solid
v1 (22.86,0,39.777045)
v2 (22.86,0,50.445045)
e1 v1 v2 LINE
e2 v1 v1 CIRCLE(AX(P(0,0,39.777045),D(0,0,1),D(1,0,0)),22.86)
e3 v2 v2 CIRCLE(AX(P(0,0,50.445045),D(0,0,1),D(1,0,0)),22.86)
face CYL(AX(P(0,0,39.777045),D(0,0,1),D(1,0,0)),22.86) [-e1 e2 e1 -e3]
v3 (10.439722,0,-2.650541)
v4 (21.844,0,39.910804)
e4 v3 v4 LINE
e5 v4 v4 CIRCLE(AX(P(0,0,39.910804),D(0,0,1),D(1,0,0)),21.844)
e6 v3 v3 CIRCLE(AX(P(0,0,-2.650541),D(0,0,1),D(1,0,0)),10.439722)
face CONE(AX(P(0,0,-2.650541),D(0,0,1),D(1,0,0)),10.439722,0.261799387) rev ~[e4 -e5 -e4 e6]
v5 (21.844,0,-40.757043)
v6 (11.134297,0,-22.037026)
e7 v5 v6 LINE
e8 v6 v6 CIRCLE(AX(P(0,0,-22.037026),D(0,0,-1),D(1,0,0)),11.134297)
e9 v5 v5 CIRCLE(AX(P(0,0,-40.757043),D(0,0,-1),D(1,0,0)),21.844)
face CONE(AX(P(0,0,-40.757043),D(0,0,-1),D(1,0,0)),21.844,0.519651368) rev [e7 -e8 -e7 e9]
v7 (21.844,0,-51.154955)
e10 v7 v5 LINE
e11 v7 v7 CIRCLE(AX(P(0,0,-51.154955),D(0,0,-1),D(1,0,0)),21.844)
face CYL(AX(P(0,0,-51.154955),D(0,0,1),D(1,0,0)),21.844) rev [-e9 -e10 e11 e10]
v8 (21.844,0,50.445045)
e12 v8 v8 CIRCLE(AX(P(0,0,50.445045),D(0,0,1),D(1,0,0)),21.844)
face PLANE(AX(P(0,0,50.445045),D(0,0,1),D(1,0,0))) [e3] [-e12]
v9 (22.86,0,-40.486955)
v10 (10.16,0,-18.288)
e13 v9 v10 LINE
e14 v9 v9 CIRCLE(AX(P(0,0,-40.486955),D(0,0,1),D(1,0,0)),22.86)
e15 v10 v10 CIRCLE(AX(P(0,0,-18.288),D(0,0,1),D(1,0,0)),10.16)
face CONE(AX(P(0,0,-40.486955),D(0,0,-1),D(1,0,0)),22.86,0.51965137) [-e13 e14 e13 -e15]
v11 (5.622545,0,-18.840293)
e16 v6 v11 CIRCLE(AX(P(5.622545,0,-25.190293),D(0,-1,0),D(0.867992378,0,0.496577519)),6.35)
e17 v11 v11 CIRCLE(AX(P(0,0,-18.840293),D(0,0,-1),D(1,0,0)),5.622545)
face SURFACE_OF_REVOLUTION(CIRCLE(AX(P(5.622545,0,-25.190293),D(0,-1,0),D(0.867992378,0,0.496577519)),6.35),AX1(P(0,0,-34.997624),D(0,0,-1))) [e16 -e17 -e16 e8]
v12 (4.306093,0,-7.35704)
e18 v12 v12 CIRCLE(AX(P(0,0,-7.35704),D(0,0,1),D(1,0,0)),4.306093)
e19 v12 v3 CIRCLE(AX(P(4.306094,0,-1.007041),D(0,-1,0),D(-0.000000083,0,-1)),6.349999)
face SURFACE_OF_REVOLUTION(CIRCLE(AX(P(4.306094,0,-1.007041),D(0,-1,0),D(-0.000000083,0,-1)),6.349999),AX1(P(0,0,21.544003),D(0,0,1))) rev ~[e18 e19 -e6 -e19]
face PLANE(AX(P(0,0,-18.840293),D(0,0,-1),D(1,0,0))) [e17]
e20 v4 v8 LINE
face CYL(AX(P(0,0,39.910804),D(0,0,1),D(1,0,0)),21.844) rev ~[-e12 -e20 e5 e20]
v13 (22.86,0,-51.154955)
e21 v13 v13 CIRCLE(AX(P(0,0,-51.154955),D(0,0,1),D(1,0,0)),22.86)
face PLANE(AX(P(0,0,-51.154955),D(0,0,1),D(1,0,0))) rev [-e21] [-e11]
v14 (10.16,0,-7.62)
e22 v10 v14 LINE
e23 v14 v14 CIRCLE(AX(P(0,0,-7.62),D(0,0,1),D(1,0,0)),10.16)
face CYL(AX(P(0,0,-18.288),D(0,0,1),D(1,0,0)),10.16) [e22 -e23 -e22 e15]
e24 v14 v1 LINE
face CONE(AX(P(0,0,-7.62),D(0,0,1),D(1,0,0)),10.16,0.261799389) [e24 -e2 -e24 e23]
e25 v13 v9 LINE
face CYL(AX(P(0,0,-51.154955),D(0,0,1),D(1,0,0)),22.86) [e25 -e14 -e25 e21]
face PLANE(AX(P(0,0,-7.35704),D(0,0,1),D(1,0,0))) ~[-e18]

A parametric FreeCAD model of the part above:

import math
import FreeCAD as App
import Part
import Sketcher

V = App.Vector
Q = App.Units.Quantity

doc = App.newDocument("Part")
body = doc.addObject("PartDesign::Body", "Body")

sketch1 = body.newObject("Sketcher::SketchObject", "Sketch")
sketch1.AttachmentSupport = (doc.getObject("XZ_Plane"), [""])
sketch1.MapMode = "FlatFace"
sketch1.addGeometry(Part.LineSegment(V(23, 40, 0), V(23, 50, 0)), False)
sketch1.addGeometry(Part.LineSegment(V(23, 50, 0), V(0, 50, 0)), False)
sketch1.addGeometry(Part.LineSegment(V(0, 50, 0), V(0, -51, 0)), False)
sketch1.addGeometry(Part.LineSegment(V(0, -51, 0), V(23, -51, 0)), False)
sketch1.addGeometry(Part.LineSegment(V(23, -51, 0), V(23, -40, 0)), False)
sketch1.addGeometry(Part.LineSegment(V(23, -40, 0), V(10, -18, 0)), False)
sketch1.addGeometry(Part.LineSegment(V(10, -18, 0), V(10, -8, 0)), False)
sketch1.addGeometry(Part.LineSegment(V(10, -8, 0), V(23, 40, 0)), False)
sketch1.addConstraint(Sketcher.Constraint("Coincident", 0, 2, 1, 1))
sketch1.addConstraint(Sketcher.Constraint("Coincident", 1, 2, 2, 1))
sketch1.addConstraint(Sketcher.Constraint("Coincident", 2, 2, 3, 1))
sketch1.addConstraint(Sketcher.Constraint("Coincident", 3, 2, 4, 1))
sketch1.addConstraint(Sketcher.Constraint("Coincident", 4, 2, 5, 1))
sketch1.addConstraint(Sketcher.Constraint("Coincident", 5, 2, 6, 1))
sketch1.addConstraint(Sketcher.Constraint("Coincident", 6, 2, 7, 1))
sketch1.addConstraint(Sketcher.Constraint("Coincident", 7, 2, 0, 1))
sketch1.addConstraint(Sketcher.Constraint("Vertical", 0))
sketch1.addConstraint(Sketcher.Constraint("Horizontal", 1))
sketch1.addConstraint(Sketcher.Constraint("Vertical", 2))
sketch1.addConstraint(Sketcher.Constraint("Horizontal", 3))
sketch1.addConstraint(Sketcher.Constraint("Vertical", 4))
sketch1.addConstraint(Sketcher.Constraint("Vertical", 6))
sketch1.addConstraint(Sketcher.Constraint("PointOnObject", 1, 2, -2))
sketch1.addConstraint(Sketcher.Constraint("Vertical", 0, 2, 3, 2))
sketch1.addConstraint(Sketcher.Constraint("Equal", 0, 4))
sketch1.addConstraint(Sketcher.Constraint("Equal", 4, 6))
sketch1.addConstraint(Sketcher.Constraint("DistanceY", 2, 2, 2, 1, Q("4 in")))
sketch1.addConstraint(Sketcher.Constraint("DistanceX", 1, 2, 1, 1, Q("0.9 in")))
sketch1.addConstraint(Sketcher.Constraint("Angle", 7, Q("75 deg")))
sketch1.addConstraint(Sketcher.Constraint("DistanceY", 0, 1, 0, 2, Q("0.42 in")))
sketch1.addConstraint(Sketcher.Constraint("DistanceX", -1, 1, 5, 2, Q("0.4 in")))
sketch1.addConstraint(Sketcher.Constraint("DistanceY", 6, 2, -1, 1, Q("0.3 in")))
revolution = body.newObject("PartDesign::Revolution", "Revolution")
revolution.Profile = sketch1
revolution.ReferenceAxis = (sketch1, ["V_Axis"])
revolution.Angle = 360

sketch2 = body.newObject("Sketcher::SketchObject", "Sketch001")
sketch2.AttachmentSupport = (doc.getObject("XZ_Plane"), [""])
sketch2.MapMode = "FlatFace"
sketch2.addGeometry(Part.LineSegment(V(10.4, -2.7, 0), V(21.8, 39.9, 0)), False)
sketch2.addGeometry(Part.LineSegment(V(21.8, 39.9, 0), V(21.8, 50.4, 0)), False)
sketch2.addGeometry(Part.LineSegment(V(21.8, 50.4, 0), V(0, 50.4, 0)), False)
sketch2.addGeometry(Part.LineSegment(V(0, 50.4, 0), V(0, -7.4, 0)), False)
sketch2.addGeometry(Part.LineSegment(V(0, -7.4, 0), V(4.3, -7.4, 0)), False)
sketch2.addGeometry(Part.ArcOfCircle(Part.Circle(V(4.3, -1, 0), V(0, 0, 1), 6.3), math.radians(-90), math.radians(-15)), False)
sketch2.addConstraint(Sketcher.Constraint("Coincident", 0, 2, 1, 1))
sketch2.addConstraint(Sketcher.Constraint("Coincident", 1, 2, 2, 1))
sketch2.addConstraint(Sketcher.Constraint("Coincident", 2, 2, 3, 1))
sketch2.addConstraint(Sketcher.Constraint("Coincident", 3, 2, 4, 1))
sketch2.addConstraint(Sketcher.Constraint("Tangent", 4, 2, 5, 1))
sketch2.addConstraint(Sketcher.Constraint("Tangent", 5, 2, 0, 1))
sketch2.addConstraint(Sketcher.Constraint("Vertical", 1))
sketch2.addConstraint(Sketcher.Constraint("Horizontal", 2))
sketch2.addConstraint(Sketcher.Constraint("Vertical", 3))
sketch2.addConstraint(Sketcher.Constraint("Horizontal", 4))
sketch2.addConstraint(Sketcher.Constraint("PointOnObject", 2, 2, -2))
sketch2.addConstraint(Sketcher.Constraint("Radius", 5, Q("0.25 in")))
sketch2.addConstraint(Sketcher.Constraint("Angle", 0, Q("75 deg")))
sketch2.addConstraint(Sketcher.Constraint("DistanceX", 2, 2, 2, 1, Q("0.86 in")))
sketch2.addConstraint(Sketcher.Constraint("DistanceY", 1, 1, 1, 2, 10.534241))
sketch2.addConstraint(Sketcher.Constraint("DistanceX", 4, 1, 4, 2, 4.306093))
sketch2.addConstraint(Sketcher.Constraint("DistanceY", 5, 3, -1, 1, 1.007041))
groove = body.newObject("PartDesign::Groove", "Groove")
groove.Profile = sketch2
groove.ReferenceAxis = (sketch2, ["V_Axis"])
groove.Angle = 360

sketch3 = body.newObject("Sketcher::SketchObject", "Sketch002")
sketch3.AttachmentSupport = (doc.getObject("XZ_Plane"), [""])
sketch3.MapMode = "FlatFace"
sketch3.addGeometry(Part.LineSegment(V(22, -41, 0), V(11, -22, 0)), False)
sketch3.addGeometry(Part.ArcOfCircle(Part.Circle(V(6, -25, 0), V(0, 0, 1), 6), math.radians(30), math.radians(90)), False)
sketch3.addGeometry(Part.LineSegment(V(6, -19, 0), V(0, -19, 0)), False)
sketch3.addGeometry(Part.LineSegment(V(0, -19, 0), V(0, -51, 0)), False)
sketch3.addGeometry(Part.LineSegment(V(0, -51, 0), V(22, -51, 0)), False)
sketch3.addGeometry(Part.LineSegment(V(22, -51, 0), V(22, -41, 0)), False)
sketch3.addConstraint(Sketcher.Constraint("Tangent", 0, 2, 1, 1))
sketch3.addConstraint(Sketcher.Constraint("Tangent", 1, 2, 2, 1))
sketch3.addConstraint(Sketcher.Constraint("Coincident", 2, 2, 3, 1))
sketch3.addConstraint(Sketcher.Constraint("Coincident", 3, 2, 4, 1))
sketch3.addConstraint(Sketcher.Constraint("Coincident", 4, 2, 5, 1))
sketch3.addConstraint(Sketcher.Constraint("Coincident", 5, 2, 0, 1))
sketch3.addConstraint(Sketcher.Constraint("Horizontal", 2))
sketch3.addConstraint(Sketcher.Constraint("Vertical", 3))
sketch3.addConstraint(Sketcher.Constraint("Horizontal", 4))
sketch3.addConstraint(Sketcher.Constraint("Vertical", 5))
sketch3.addConstraint(Sketcher.Constraint("PointOnObject", 2, 2, -2))
sketch3.addConstraint(Sketcher.Constraint("Radius", 1, Q("0.25 in")))
sketch3.addConstraint(Sketcher.Constraint("DistanceX", 4, 1, 4, 2, Q("0.86 in")))
sketch3.addConstraint(Sketcher.Constraint("DistanceY", 3, 2, 3, 1, 32.314662))
sketch3.addConstraint(Sketcher.Constraint("DistanceY", 5, 1, 5, 2, 10.397912))
sketch3.addConstraint(Sketcher.Constraint("Distance", 0, 21.56703))
sketch3.addConstraint(Sketcher.Constraint("DistanceY", 1, 3, -1, 1, 25.190293))
groove2 = body.newObject("PartDesign::Groove", "Groove001")
groove2.Profile = sketch3
groove2.ReferenceAxis = (sketch3, ["V_Axis"])
groove2.Angle = 360

doc.recompute()
